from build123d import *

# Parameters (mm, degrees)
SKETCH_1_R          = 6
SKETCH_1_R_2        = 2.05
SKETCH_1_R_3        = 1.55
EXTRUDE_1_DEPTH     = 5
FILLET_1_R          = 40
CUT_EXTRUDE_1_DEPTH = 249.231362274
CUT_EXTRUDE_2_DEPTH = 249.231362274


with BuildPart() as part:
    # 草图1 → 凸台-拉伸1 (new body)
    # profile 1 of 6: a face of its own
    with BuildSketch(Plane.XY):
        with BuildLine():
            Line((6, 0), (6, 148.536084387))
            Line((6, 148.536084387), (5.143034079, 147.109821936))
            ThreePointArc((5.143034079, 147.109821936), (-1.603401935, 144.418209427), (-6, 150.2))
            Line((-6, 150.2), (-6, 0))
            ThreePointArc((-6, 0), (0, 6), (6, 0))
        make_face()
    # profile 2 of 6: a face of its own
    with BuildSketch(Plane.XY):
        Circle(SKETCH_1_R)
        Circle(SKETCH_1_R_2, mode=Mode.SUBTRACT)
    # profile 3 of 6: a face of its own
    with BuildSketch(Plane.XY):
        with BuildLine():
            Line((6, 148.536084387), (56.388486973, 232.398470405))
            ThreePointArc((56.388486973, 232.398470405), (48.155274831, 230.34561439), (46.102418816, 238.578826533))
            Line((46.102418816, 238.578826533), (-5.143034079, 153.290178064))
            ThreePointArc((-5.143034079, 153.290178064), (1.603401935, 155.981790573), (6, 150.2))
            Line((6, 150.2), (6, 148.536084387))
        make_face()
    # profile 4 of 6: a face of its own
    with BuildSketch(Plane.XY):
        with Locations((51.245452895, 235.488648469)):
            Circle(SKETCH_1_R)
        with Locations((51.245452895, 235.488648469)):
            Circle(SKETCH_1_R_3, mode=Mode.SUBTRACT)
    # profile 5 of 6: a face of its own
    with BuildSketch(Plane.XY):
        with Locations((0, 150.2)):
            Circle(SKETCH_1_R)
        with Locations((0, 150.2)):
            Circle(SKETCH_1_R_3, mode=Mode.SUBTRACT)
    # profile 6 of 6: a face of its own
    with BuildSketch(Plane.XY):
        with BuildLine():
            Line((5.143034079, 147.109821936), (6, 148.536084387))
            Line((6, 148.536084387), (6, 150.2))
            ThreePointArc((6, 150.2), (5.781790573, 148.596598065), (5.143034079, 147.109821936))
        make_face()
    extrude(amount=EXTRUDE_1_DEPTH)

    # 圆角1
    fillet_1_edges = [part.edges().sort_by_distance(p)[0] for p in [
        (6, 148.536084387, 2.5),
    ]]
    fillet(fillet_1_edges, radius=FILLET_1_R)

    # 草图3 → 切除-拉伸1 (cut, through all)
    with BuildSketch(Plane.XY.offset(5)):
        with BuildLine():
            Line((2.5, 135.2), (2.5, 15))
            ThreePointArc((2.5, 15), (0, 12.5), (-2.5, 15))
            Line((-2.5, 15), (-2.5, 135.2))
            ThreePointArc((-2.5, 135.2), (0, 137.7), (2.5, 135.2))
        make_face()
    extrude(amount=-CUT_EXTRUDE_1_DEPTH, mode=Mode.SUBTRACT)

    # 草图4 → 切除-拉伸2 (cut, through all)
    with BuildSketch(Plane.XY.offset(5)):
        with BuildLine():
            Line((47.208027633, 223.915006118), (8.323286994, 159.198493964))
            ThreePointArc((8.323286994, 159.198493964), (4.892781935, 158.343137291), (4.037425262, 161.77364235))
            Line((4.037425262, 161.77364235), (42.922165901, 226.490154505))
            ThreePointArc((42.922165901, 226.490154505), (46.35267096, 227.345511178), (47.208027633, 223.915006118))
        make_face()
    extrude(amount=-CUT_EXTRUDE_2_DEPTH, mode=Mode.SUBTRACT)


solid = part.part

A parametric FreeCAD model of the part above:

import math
import FreeCAD as App
import Part
import Sketcher
Q = App.Units.Quantity


def edges_at(feature, points):
    """Names of the edges that pass closest to the given points."""
    edges = feature.Shape.Edges
    near = lambda p: min(range(len(edges)), key=lambda i: edges[i].distToShape(Part.Vertex(*p))[0])
    return sorted({f"Edge{near(p) + 1}" for p in points})

doc = App.newDocument("Part")
body = doc.addObject("PartDesign::Body", "Body")

# Sketch on XY plane
sketch1 = doc.addObject("Sketcher::SketchObject", "Sketch")
body.addObject(sketch1)
sketch1.AttachmentSupport = (doc.XY_Plane, [""])
sketch1.MapMode = "FlatFace"
sketch1.addGeometry(Part.LineSegment(App.Vector(6, 0, 0), App.Vector(6, 148.5, 0)), False)
sketch1.addGeometry(Part.LineSegment(App.Vector(6, 148.5, 0), App.Vector(56.4, 232.4, 0)), False)
sketch1.addGeometry(Part.ArcOfCircle(Part.Circle(App.Vector(51.2, 235.5, 0), App.Vector(0, 0, 1), 6), math.radians(-31), math.radians(149)), False)
sketch1.addGeometry(Part.LineSegment(App.Vector(46.1, 238.6, 0), App.Vector(-5.1, 153.3, 0)), False)
sketch1.addGeometry(Part.ArcOfCircle(Part.Circle(App.Vector(0, 150.2, 0), App.Vector(0, 0, 1), 6), math.radians(149), math.radians(180)), False)
sketch1.addGeometry(Part.LineSegment(App.Vector(-6, 150.2, 0), App.Vector(-6, 0, 0)), False)
sketch1.addGeometry(Part.ArcOfCircle(Part.Circle(App.Vector(0, 0, 0), App.Vector(0, 0, 1), 6), math.radians(180), math.radians(360)), False)
sketch1.addGeometry(Part.Circle(App.Vector(0, 150.2, 0), App.Vector(0, 0, 1), 1.6), False)
sketch1.addGeometry(Part.Circle(App.Vector(0, 0, 0), App.Vector(0, 0, 1), 2), False)
sketch1.addGeometry(Part.Circle(App.Vector(51.2, 235.5, 0), App.Vector(0, 0, 1), 1.6), False)
sketch1.addConstraint(Sketcher.Constraint("Coincident", 0, 2, 1, 1))
sketch1.addConstraint(Sketcher.Constraint("Tangent", 1, 2, 2, 1))
sketch1.addConstraint(Sketcher.Constraint("Tangent", 2, 2, 3, 1))
sketch1.addConstraint(Sketcher.Constraint("Tangent", 3, 2, 4, 1))
sketch1.addConstraint(Sketcher.Constraint("Tangent", 4, 2, 5, 1))
sketch1.addConstraint(Sketcher.Constraint("Tangent", 5, 2, 6, 1))
sketch1.addConstraint(Sketcher.Constraint("Tangent", 6, 2, 0, 1))
sketch1.addConstraint(Sketcher.Constraint("Vertical", 0))
sketch1.addConstraint(Sketcher.Constraint("Vertical", 5))
sketch1.addConstraint(Sketcher.Constraint("Coincident", 6, 3, -1, 1))
sketch1.addConstraint(Sketcher.Constraint("Coincident", 8, 3, -1, 1))
sketch1.addConstraint(Sketcher.Constraint("Coincident", 7, 3, 4, 3))
sketch1.addConstraint(Sketcher.Constraint("Coincident", 9, 3, 2, 3))
sketch1.addConstraint(Sketcher.Constraint("Equal", 2, 4))
sketch1.addConstraint(Sketcher.Constraint("Equal", 4, 6))
sketch1.addConstraint(Sketcher.Constraint("Equal", 7, 9))
sketch1.addConstraint(Sketcher.Constraint("Parallel", 1, 3))
sketch1.addConstraint(Sketcher.Constraint("Radius", 2, Q("6 mm")))
sketch1.addConstraint(Sketcher.Constraint("Diameter", 7, Q("3.1 mm")))
sketch1.addConstraint(Sketcher.Constraint("Diameter", 8, Q("4.1 mm")))
sketch1.addConstraint(Sketcher.Constraint("DistanceY", 5, 2, 5, 1, Q("150.2 mm")))
sketch1.addConstraint(Sketcher.Constraint("Distance", 3, Q("99.5 mm")))
sketch1.addConstraint(Sketcher.Constraint("DistanceY", 0, 1, 0, 2, Q("148.536084 mm")))
pad1 = doc.addObject("PartDesign::Pad", "Pad")
body.addObject(pad1)
pad1.Profile = sketch1
pad1.Length = 5
doc.recompute()

fillet = doc.addObject("PartDesign::Fillet", "Fillet")
body.addObject(fillet)
fillet.Base = (pad1, edges_at(pad1, [(6, 148.536, 2.5)]))
fillet.Radius = 40

# Sketch on XY plane
sketch2 = doc.addObject("Sketcher::SketchObject", "Sketch001")
body.addObject(sketch2)
sketch2.AttachmentSupport = (doc.XY_Plane, [""])
sketch2.MapMode = "FlatFace"
sketch2.AttachmentOffset = App.Placement(App.Vector(0, 0, 5), App.Rotation())
sketch2.addGeometry(Part.LineSegment(App.Vector(2.5, 15, 0), App.Vector(2.5, 135.2, 0)), False)
sketch2.addGeometry(Part.ArcOfCircle(Part.Circle(App.Vector(0, 135.2, 0), App.Vector(0, 0, 1), 2.5), math.radians(0), math.radians(180)), False)
sketch2.addGeometry(Part.LineSegment(App.Vector(-2.5, 135.2, 0), App.Vector(-2.5, 15, 0)), False)
sketch2.addGeometry(Part.ArcOfCircle(Part.Circle(App.Vector(0, 15, 0), App.Vector(0, 0, 1), 2.5), math.radians(180), math.radians(360)), False)
sketch2.addConstraint(Sketcher.Constraint("Tangent", 0, 2, 1, 1))
sketch2.addConstraint(Sketcher.Constraint("Tangent", 1, 2, 2, 1))
sketch2.addConstraint(Sketcher.Constraint("Tangent", 2, 2, 3, 1))
sketch2.addConstraint(Sketcher.Constraint("Tangent", 3, 2, 0, 1))
sketch2.addConstraint(Sketcher.Constraint("Vertical", 0))
sketch2.addConstraint(Sketcher.Constraint("Vertical", 2))
sketch2.addConstraint(Sketcher.Constraint("PointOnObject", 1, 3, -2))
sketch2.addConstraint(Sketcher.Constraint("Radius", 1, Q("2.5 mm")))
sketch2.addConstraint(Sketcher.Constraint("DistanceY", 0, 1, 0, 2, Q("120.2 mm")))
sketch2.addConstraint(Sketcher.Constraint("DistanceY", -1, 1, 3, 3, Q("15 mm")))
pocket1 = doc.addObject("PartDesign::Pocket", "Pocket")
body.addObject(pocket1)
pocket1.Profile = sketch2
pocket1.Type = "ThroughAll"

# Sketch on XY plane
sketch3 = doc.addObject("Sketcher::SketchObject", "Sketch002")
body.addObject(sketch3)
sketch3.AttachmentSupport = (doc.XY_Plane, [""])
sketch3.MapMode = "FlatFace"
sketch3.AttachmentOffset = App.Placement(App.Vector(0, 0, 5), App.Rotation())
sketch3.addGeometry(Part.LineSegment(App.Vector(8.3, 159.2, 0), App.Vector(47.2, 223.9, 0)), False)
sketch3.addGeometry(Part.ArcOfCircle(Part.Circle(App.Vector(45.1, 225.2, 0), App.Vector(0, 0, 1), 2.5), math.radians(-31), math.radians(149)), False)
sketch3.addGeometry(Part.LineSegment(App.Vector(42.9, 226.5, 0), App.Vector(4, 161.8, 0)), False)
sketch3.addGeometry(Part.ArcOfCircle(Part.Circle(App.Vector(6.2, 160.5, 0), App.Vector(0, 0, 1), 2.5), math.radians(149), math.radians(329)), False)
sketch3.addConstraint(Sketcher.Constraint("Tangent", 0, 2, 1, 1))
sketch3.addConstraint(Sketcher.Constraint("Tangent", 1, 2, 2, 1))
sketch3.addConstraint(Sketcher.Constraint("Tangent", 2, 2, 3, 1))
sketch3.addConstraint(Sketcher.Constraint("Tangent", 3, 2, 0, 1))
sketch3.addConstraint(Sketcher.Constraint("Equal", 1, 3))
sketch3.addConstraint(Sketcher.Constraint("Radius", 1, Q("2.5 mm")))
sketch3.addConstraint(Sketcher.Constraint("Distance", 0, Q("75.5 mm")))
sketch3.addConstraint(Sketcher.Constraint("DistanceY", -1, 1, 1, 3, Q("225.20258 mm")))
sketch3.addConstraint(Sketcher.Constraint("DistanceY", -1, 1, 3, 3, Q("160.486068 mm")))
sketch3.addConstraint(Sketcher.Constraint("DistanceX", -1, 1, 1, 3, Q("45.065097 mm")))
pocket2 = doc.addObject("PartDesign::Pocket", "Pocket001")
body.addObject(pocket2)
pocket2.Profile = sketch3
pocket2.Type = "ThroughAll"

doc.recompute()
